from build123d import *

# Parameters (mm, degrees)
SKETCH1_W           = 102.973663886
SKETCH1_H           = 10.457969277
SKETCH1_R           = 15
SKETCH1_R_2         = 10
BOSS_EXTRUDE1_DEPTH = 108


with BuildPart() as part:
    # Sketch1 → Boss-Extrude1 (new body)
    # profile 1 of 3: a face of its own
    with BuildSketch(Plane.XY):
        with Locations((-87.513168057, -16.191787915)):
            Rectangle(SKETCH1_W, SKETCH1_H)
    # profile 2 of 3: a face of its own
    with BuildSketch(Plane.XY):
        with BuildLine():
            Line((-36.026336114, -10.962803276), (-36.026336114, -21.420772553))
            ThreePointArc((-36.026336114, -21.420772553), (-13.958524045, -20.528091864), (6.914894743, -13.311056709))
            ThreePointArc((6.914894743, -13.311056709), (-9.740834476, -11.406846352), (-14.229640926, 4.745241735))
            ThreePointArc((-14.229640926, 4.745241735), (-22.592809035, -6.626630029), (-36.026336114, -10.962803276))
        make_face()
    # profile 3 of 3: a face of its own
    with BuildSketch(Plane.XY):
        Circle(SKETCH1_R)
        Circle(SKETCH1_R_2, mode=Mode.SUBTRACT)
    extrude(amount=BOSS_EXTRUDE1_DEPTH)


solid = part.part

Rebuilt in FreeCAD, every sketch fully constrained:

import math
import FreeCAD as App
import Part
import Sketcher
Q = App.Units.Quantity

doc = App.newDocument("Part")
body = doc.addObject("PartDesign::Body", "Body")

# Sketch on XY plane
sketch1 = doc.addObject("Sketcher::SketchObject", "Sketch")
body.addObject(sketch1)
sketch1.AttachmentSupport = (doc.XY_Plane, [""])
sketch1.MapMode = "FlatFace"
sketch1.addGeometry([
    Part.LineSegment(App.Vector(-139, -10.962803, 0), App.Vector(-139, -21.420773, 0)),  # 0
    Part.LineSegment(App.Vector(-139, -21.420773, 0), App.Vector(-36.026336, -21.420773, 0)),  # 1
    Part.ArcOfCircle(Part.Circle(App.Vector(-28.023001, 53.943808, 0), App.Vector(0, 0, 1), 75.788346), math.radians(-96.061802), math.radians(-62.548799)),  # 2
    Part.ArcOfCircle(Part.Circle(App.Vector(0, 0, 0), App.Vector(0, 0, 1), 15), math.radians(-62.548799), math.radians(161.557702)),  # 3
    Part.ArcOfCircle(Part.Circle(App.Vector(-36.026336, 12.013913, 0), App.Vector(0, 0, 1), 22.976717), math.radians(-90), math.radians(-18.442298)),  # 4
    Part.LineSegment(App.Vector(-36.026336, -10.962803, 0), App.Vector(-139, -10.962803, 0)),  # 5
    Part.Circle(App.Vector(0, 0, 0), App.Vector(0, 0, 1), 10),  # 6
], False)
sketch1.addConstraint([
    Sketcher.Constraint("Coincident", 0, 2, 1, 1),
    Sketcher.Constraint("Coincident", 1, 2, 2, 1),
    Sketcher.Constraint("Tangent", 2, 2, 3, 1),
    Sketcher.Constraint("Tangent", 3, 2, 4, 2),
    Sketcher.Constraint("Tangent", 4, 1, 5, 1),
    Sketcher.Constraint("Coincident", 5, 2, 0, 1),
    Sketcher.Constraint("Vertical", 0),
    Sketcher.Constraint("Horizontal", 1),
    Sketcher.Constraint("Horizontal", 5),
    Sketcher.Constraint("Coincident", 3, 3, -1, 1),
    Sketcher.Constraint("Coincident", 6, 3, -1, 1),
    Sketcher.Constraint("Vertical", 4, 3, 1, 2),
    Sketcher.Constraint("Diameter", 6, Q("20 mm")),
    Sketcher.Constraint("Radius", 3, Q("15 mm")),
    Sketcher.Constraint("DistanceX", 0, 2, -1, 1, Q("139 mm")),
    Sketcher.Constraint("DistanceX", 2, 3, -1, 1, Q("28.023001 mm")),
    Sketcher.Constraint("Radius", 2, Q("75.788346 mm")),
    Sketcher.Constraint("Radius", 4, Q("22.976717 mm")),
    Sketcher.Constraint("DistanceY", 0, 2, 0, 1, Q("10.457969 mm")),
])
pad1 = doc.addObject("PartDesign::Pad", "Pad")
body.addObject(pad1)
pad1.Profile = sketch1
pad1.Length = 108

doc.recompute()
